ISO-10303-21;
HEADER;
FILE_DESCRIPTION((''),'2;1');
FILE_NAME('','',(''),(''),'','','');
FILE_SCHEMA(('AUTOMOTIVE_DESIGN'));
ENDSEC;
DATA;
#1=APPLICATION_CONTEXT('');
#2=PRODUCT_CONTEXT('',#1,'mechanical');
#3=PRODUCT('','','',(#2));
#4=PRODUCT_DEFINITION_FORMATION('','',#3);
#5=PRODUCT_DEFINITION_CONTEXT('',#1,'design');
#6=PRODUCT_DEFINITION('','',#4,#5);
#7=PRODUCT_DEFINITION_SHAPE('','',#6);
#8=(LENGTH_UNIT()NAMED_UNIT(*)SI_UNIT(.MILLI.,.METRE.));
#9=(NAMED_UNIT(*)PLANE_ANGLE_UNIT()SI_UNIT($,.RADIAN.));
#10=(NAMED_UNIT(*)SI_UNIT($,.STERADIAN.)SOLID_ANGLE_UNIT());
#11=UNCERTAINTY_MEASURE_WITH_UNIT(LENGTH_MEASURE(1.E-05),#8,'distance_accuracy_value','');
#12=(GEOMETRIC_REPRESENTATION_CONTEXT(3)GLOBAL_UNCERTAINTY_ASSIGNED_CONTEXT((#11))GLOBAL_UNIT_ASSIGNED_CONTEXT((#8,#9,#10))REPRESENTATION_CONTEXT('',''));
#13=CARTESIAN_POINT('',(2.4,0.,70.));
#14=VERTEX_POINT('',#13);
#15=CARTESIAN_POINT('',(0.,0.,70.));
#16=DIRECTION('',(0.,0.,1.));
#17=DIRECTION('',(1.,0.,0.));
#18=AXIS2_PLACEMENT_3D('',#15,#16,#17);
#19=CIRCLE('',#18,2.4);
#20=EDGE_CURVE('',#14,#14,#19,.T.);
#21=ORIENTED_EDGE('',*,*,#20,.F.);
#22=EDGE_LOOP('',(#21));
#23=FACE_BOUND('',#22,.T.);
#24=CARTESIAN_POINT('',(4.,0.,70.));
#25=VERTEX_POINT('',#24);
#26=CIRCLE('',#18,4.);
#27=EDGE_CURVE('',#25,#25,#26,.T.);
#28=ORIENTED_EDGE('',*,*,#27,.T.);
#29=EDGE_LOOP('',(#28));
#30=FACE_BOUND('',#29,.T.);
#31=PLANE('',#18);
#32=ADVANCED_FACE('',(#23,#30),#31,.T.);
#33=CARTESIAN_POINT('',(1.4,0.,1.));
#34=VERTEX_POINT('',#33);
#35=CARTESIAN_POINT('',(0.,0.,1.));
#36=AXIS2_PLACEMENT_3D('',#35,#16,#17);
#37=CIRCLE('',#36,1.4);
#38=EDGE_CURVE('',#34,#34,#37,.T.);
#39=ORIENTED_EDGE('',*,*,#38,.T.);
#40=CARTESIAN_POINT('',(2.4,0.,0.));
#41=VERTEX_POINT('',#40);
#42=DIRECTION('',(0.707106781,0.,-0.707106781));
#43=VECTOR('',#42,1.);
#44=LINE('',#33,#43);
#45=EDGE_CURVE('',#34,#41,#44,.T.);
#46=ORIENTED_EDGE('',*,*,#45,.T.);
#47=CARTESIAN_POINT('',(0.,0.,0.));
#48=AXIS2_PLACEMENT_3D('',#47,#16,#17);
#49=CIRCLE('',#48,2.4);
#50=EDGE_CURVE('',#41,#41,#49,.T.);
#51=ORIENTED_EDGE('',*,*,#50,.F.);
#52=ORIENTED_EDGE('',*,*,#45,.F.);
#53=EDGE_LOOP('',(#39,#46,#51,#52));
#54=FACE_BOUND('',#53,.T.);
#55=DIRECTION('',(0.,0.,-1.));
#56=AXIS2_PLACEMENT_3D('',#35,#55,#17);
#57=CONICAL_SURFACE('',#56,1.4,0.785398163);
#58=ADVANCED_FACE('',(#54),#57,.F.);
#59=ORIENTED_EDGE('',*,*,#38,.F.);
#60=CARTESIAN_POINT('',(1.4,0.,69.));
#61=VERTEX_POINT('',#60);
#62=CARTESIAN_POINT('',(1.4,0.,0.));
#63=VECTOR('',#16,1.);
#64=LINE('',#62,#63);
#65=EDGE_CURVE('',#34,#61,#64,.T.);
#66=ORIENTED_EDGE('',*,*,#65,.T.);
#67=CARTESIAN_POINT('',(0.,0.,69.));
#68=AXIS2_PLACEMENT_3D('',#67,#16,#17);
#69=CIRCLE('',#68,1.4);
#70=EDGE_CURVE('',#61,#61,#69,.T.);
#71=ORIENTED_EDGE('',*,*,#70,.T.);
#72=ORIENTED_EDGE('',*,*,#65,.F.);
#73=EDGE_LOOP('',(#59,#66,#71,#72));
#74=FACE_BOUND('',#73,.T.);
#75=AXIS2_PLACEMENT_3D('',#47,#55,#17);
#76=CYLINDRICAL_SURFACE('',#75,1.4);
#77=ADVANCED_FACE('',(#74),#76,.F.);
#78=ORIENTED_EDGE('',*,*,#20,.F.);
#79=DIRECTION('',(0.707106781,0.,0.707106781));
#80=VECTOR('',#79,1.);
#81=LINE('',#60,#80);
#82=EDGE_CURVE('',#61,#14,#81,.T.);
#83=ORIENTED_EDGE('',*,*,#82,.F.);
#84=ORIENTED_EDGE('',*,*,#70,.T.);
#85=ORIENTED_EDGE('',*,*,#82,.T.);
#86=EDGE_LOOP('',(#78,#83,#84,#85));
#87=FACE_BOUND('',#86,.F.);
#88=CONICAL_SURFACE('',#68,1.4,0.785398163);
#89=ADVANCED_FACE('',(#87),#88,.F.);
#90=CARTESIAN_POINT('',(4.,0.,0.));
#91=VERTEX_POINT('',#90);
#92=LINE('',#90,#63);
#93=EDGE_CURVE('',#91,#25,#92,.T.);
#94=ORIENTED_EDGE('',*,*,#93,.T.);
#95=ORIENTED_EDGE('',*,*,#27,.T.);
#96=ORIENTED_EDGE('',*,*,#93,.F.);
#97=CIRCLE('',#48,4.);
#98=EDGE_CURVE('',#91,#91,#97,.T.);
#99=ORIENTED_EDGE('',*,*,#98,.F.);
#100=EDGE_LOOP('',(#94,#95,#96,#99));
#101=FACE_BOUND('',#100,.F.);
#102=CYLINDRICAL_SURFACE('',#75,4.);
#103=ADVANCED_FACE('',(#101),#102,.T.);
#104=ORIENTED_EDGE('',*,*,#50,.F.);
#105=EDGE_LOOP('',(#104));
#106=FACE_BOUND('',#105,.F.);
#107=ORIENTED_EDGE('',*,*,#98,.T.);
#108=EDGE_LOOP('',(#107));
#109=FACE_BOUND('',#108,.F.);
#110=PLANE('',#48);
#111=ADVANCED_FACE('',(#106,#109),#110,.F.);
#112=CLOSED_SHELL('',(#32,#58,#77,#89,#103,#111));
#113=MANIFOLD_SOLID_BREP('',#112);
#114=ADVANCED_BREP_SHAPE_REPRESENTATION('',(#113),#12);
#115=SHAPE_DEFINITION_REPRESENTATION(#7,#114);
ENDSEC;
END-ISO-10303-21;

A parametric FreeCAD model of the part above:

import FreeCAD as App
import Part
import Sketcher


def edges_at(feature, points):
    """Names of the edges that pass closest to the given points."""
    edges = feature.Shape.Edges
    near = lambda p: min(range(len(edges)), key=lambda i: edges[i].distToShape(Part.Vertex(*p))[0])
    return sorted({f"Edge{near(p) + 1}" for p in points})

doc = App.newDocument("Part")
body = doc.addObject("PartDesign::Body", "Body")

sketch1 = body.newObject("Sketcher::SketchObject", "Sketch")
sketch1.AttachmentSupport = (doc.getObject("XY_Plane"), [""])
sketch1.MapMode = "FlatFace"
sketch1.addGeometry(Part.Circle(App.Vector(0, 0, 0), App.Vector(0, 0, 1), 4), False)
sketch1.addGeometry(Part.Circle(App.Vector(0, 0, 0), App.Vector(0, 0, 1), 1.4), False)
sketch1.addConstraint(Sketcher.Constraint("Coincident", 0, 3, -1, 1))
sketch1.addConstraint(Sketcher.Constraint("Coincident", 1, 3, -1, 1))
sketch1.addConstraint(Sketcher.Constraint("Diameter", 0, 8.0))
sketch1.addConstraint(Sketcher.Constraint("Diameter", 1, 2.8))
pad1 = body.newObject("PartDesign::Pad", "Pad")
pad1.Profile = sketch1
pad1.Length = 70
doc.recompute()

chamfer = body.newObject("PartDesign::Chamfer", "Chamfer")
chamfer.Base = (pad1, edges_at(pad1, [(-1.4, 0, 70), (-1.4, 0, 0)]))
chamfer.Size = 1

doc.recompute()
